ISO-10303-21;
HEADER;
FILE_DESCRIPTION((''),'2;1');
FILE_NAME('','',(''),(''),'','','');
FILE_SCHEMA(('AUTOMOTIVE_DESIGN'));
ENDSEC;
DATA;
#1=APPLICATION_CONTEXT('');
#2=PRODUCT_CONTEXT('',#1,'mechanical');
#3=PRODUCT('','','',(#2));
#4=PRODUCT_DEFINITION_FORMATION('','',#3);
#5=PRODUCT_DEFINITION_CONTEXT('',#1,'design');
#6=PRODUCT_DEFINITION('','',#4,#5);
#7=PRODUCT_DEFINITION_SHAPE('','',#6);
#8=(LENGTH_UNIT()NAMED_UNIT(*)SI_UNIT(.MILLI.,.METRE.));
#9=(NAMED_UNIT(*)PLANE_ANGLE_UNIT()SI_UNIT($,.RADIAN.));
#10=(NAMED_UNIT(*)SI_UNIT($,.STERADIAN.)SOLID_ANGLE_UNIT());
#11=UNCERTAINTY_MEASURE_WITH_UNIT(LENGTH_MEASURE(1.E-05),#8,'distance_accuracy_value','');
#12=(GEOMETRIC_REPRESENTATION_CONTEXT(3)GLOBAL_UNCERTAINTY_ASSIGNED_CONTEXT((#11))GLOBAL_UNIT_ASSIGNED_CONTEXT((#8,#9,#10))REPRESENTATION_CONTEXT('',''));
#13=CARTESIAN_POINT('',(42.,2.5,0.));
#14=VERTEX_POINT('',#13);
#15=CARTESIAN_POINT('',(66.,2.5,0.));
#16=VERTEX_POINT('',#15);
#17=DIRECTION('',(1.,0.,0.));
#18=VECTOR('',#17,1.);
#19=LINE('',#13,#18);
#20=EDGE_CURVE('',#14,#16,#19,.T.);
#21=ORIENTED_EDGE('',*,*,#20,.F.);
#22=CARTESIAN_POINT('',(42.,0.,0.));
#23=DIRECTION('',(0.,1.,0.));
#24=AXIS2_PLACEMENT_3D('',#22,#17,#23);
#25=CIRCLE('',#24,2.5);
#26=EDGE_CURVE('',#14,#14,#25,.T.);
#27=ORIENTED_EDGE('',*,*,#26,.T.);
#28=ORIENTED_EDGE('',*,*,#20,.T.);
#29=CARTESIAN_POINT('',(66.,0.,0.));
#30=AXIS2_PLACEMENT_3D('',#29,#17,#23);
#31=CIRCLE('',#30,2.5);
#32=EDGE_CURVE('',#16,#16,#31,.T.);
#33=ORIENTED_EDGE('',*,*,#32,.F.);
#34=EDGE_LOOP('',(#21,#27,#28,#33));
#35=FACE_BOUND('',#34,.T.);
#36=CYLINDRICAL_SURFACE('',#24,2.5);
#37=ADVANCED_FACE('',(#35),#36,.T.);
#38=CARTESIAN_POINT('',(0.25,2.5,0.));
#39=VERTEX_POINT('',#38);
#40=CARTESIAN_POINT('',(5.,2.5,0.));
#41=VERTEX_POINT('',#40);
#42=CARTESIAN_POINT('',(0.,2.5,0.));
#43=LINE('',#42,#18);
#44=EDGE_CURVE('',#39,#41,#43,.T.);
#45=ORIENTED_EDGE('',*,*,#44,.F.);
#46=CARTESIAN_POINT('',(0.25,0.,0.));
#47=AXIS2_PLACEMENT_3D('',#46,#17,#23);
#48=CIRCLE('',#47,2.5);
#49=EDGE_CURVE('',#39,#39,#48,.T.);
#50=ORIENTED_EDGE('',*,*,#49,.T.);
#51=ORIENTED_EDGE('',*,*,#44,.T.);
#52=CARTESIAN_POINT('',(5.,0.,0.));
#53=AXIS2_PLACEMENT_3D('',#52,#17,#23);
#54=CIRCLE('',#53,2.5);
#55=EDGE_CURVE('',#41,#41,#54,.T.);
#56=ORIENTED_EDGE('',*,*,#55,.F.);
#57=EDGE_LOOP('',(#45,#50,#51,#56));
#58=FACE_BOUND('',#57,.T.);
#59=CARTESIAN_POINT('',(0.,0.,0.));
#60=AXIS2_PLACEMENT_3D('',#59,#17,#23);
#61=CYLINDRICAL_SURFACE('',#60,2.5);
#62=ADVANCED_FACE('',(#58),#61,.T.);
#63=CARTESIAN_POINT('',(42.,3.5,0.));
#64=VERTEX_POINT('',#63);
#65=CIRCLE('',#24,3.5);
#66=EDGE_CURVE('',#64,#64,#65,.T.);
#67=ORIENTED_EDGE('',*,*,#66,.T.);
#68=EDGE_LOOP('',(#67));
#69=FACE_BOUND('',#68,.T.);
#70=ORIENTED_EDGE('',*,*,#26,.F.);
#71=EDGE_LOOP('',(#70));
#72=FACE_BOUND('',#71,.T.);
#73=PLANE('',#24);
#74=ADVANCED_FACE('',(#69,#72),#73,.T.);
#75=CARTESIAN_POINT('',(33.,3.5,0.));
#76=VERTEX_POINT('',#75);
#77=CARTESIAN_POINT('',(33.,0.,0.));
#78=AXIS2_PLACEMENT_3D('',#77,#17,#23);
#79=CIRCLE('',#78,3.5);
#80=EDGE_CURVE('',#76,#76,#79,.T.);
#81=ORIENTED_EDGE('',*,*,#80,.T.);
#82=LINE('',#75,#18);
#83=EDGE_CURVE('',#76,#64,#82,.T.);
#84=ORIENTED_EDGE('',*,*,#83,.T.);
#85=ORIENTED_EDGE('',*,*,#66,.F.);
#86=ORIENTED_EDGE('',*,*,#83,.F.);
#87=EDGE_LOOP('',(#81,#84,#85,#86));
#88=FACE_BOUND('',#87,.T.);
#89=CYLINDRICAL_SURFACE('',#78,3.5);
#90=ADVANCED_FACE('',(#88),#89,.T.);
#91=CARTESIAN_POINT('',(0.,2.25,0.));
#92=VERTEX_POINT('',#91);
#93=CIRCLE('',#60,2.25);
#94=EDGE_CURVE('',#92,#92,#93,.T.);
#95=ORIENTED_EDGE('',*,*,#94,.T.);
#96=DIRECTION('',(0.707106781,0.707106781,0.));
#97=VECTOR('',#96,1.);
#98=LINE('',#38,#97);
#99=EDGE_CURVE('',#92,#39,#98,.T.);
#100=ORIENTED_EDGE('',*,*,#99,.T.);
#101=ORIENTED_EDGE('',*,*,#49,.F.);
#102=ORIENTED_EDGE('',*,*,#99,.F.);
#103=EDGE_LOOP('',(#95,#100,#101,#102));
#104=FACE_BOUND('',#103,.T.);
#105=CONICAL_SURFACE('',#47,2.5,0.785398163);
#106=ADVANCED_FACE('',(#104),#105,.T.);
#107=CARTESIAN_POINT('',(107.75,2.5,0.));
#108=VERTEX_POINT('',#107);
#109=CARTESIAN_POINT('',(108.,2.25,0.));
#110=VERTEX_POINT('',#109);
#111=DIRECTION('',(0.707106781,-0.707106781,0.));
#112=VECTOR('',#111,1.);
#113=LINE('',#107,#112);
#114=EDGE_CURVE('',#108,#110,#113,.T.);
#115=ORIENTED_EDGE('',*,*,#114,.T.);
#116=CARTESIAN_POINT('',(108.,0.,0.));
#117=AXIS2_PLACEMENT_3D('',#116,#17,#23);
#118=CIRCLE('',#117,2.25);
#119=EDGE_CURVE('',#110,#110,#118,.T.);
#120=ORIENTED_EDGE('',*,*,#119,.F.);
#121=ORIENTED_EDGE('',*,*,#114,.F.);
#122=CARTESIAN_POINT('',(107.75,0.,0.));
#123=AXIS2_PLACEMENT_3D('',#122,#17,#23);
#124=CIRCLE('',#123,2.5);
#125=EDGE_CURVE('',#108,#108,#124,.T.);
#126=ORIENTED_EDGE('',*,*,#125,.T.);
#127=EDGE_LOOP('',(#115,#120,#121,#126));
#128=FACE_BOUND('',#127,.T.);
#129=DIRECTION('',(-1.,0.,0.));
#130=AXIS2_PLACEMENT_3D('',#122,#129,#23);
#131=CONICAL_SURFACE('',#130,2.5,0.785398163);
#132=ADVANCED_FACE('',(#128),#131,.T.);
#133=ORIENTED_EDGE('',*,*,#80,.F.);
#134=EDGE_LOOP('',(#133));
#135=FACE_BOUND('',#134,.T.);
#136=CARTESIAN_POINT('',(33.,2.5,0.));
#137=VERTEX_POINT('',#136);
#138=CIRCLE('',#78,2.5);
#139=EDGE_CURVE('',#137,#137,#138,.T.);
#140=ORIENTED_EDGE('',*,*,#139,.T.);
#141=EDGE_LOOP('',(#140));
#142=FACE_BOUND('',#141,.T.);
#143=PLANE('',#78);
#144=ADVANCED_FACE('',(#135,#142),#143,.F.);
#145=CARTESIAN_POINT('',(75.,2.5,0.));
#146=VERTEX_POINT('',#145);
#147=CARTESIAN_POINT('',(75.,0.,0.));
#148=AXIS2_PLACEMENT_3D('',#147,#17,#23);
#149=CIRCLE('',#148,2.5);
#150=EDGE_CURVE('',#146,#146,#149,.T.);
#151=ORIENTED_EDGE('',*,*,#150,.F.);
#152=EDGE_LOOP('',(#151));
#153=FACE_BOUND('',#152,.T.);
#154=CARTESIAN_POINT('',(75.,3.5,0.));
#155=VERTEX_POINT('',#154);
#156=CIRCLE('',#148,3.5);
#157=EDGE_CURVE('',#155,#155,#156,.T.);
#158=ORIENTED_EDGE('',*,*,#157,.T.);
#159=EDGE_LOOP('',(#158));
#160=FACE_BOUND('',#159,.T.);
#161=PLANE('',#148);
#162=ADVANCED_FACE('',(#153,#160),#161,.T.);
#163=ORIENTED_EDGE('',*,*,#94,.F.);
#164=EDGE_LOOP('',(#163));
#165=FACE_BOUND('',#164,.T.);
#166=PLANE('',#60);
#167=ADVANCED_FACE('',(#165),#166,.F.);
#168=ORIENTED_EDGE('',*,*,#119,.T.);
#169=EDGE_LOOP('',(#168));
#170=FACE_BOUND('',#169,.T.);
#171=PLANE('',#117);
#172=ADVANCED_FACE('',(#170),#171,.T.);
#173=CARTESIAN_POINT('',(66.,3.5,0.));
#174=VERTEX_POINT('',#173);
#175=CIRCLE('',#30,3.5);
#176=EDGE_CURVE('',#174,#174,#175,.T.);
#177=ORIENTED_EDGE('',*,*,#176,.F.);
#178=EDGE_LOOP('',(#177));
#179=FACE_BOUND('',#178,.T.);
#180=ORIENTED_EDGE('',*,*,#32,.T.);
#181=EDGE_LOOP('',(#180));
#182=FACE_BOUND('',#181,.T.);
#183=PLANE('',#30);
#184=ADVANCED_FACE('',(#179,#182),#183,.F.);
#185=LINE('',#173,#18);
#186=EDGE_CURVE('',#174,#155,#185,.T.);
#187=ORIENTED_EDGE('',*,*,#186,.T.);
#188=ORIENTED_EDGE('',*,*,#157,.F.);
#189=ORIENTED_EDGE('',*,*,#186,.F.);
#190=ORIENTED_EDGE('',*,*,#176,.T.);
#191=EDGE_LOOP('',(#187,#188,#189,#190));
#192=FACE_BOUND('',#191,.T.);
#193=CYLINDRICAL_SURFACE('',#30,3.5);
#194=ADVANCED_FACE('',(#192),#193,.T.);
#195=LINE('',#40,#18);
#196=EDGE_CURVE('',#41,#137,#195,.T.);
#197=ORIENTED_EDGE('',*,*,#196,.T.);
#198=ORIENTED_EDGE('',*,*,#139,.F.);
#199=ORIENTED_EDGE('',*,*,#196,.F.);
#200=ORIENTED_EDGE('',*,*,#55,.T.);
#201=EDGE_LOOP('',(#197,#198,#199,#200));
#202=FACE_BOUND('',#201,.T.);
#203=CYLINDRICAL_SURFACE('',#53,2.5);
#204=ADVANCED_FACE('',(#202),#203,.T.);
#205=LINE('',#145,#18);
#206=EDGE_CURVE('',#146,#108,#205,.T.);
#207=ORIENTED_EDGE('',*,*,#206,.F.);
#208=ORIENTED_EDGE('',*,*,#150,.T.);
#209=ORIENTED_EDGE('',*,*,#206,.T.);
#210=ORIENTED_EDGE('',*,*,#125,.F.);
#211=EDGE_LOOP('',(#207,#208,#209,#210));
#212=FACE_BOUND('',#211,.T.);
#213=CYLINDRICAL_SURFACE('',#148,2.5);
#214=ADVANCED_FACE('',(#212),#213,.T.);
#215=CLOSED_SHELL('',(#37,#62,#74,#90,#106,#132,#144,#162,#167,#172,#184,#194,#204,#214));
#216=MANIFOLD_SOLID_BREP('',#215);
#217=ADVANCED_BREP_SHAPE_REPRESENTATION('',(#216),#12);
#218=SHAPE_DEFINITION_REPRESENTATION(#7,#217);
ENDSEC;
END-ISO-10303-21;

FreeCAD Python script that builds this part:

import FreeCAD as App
import Part
import Sketcher

V = App.Vector
Q = App.Units.Quantity


def edges_at(feature, points):
    """Names of the edges that pass closest to the given points."""
    edges = feature.Shape.Edges
    near = lambda p: min(range(len(edges)), key=lambda i: edges[i].distToShape(Part.Vertex(*p))[0])
    return sorted({f"Edge{near(p) + 1}" for p in points})

doc = App.newDocument("Part")
body = doc.addObject("PartDesign::Body", "Body")

# Sketch on XY plane
sketch1 = body.newObject("Sketcher::SketchObject", "Sketch")
sketch1.AttachmentSupport = (doc.getObject("XY_Plane"), [""])
sketch1.MapMode = "FlatFace"
sketch1.addGeometry([
    Part.LineSegment(V(0, 2.5, 0), V(0, 0, 0)),  # 0
    Part.LineSegment(V(0, 0, 0), V(108, 0, 0)),  # 1
    Part.LineSegment(V(108, 0, 0), V(108, 2.5, 0)),  # 2
    Part.LineSegment(V(108, 2.5, 0), V(75, 2.5, 0)),  # 3
    Part.LineSegment(V(75, 2.5, 0), V(75, 3.5, 0)),  # 4
    Part.LineSegment(V(75, 3.5, 0), V(66, 3.5, 0)),  # 5
    Part.LineSegment(V(66, 3.5, 0), V(66, 2.5, 0)),  # 6
    Part.LineSegment(V(66, 2.5, 0), V(42, 2.5, 0)),  # 7
    Part.LineSegment(V(42, 2.5, 0), V(42, 3.5, 0)),  # 8
    Part.LineSegment(V(42, 3.5, 0), V(33, 3.5, 0)),  # 9
    Part.LineSegment(V(33, 3.5, 0), V(33, 2.5, 0)),  # 10
    Part.LineSegment(V(33, 2.5, 0), V(0, 2.5, 0)),  # 11
], False)
sketch1.addConstraint([
    Sketcher.Constraint("Coincident", 0, 2, 1, 1),
    Sketcher.Constraint("Coincident", 1, 2, 2, 1),
    Sketcher.Constraint("Coincident", 2, 2, 3, 1),
    Sketcher.Constraint("Coincident", 3, 2, 4, 1),
    Sketcher.Constraint("Coincident", 4, 2, 5, 1),
    Sketcher.Constraint("Coincident", 5, 2, 6, 1),
    Sketcher.Constraint("Coincident", 6, 2, 7, 1),
    Sketcher.Constraint("Coincident", 7, 2, 8, 1),
    Sketcher.Constraint("Coincident", 8, 2, 9, 1),
    Sketcher.Constraint("Coincident", 9, 2, 10, 1),
    Sketcher.Constraint("Coincident", 10, 2, 11, 1),
    Sketcher.Constraint("Coincident", 11, 2, 0, 1),
    Sketcher.Constraint("Vertical", 0),
    Sketcher.Constraint("Horizontal", 1),
    Sketcher.Constraint("Vertical", 2),
    Sketcher.Constraint("Horizontal", 3),
    Sketcher.Constraint("Vertical", 4),
    Sketcher.Constraint("Horizontal", 5),
    Sketcher.Constraint("Vertical", 6),
    Sketcher.Constraint("Horizontal", 7),
    Sketcher.Constraint("Vertical", 8),
    Sketcher.Constraint("Horizontal", 9),
    Sketcher.Constraint("Vertical", 10),
    Sketcher.Constraint("Horizontal", 11),
    Sketcher.Constraint("Coincident", 0, 2, -1, 1),
    Sketcher.Constraint("Horizontal", 3, 2, 6, 2),
    Sketcher.Constraint("Horizontal", 5, 2, 8, 2),
    Sketcher.Constraint("Horizontal", 7, 2, 10, 2),
    Sketcher.Constraint("Equal", 5, 9),
    Sketcher.Constraint("Equal", 3, 11),
    Sketcher.Constraint("DistanceX", 3, 2, 3, 1, Q("33 mm")),
    Sketcher.Constraint("DistanceX", 5, 2, 5, 1, Q("9 mm")),
    Sketcher.Constraint("DistanceX", 7, 2, 7, 1, Q("24 mm")),
    Sketcher.Constraint("DistanceY", 4, 1, 4, 2, Q("1 mm")),
    Sketcher.Constraint("DistanceY", 0, 2, 0, 1, Q("2.5 mm")),
])
revolution = body.newObject("PartDesign::Revolution", "Revolution")
revolution.Profile = sketch1
revolution.ReferenceAxis = (sketch1, ["H_Axis"])
revolution.Angle = 360
doc.recompute()

chamfer = body.newObject("PartDesign::Chamfer", "Chamfer")
chamfer.Base = (revolution, edges_at(revolution, [(108, -2.5, 0), (0, -2.5, 0)]))
chamfer.Size = 0.25

doc.recompute()
